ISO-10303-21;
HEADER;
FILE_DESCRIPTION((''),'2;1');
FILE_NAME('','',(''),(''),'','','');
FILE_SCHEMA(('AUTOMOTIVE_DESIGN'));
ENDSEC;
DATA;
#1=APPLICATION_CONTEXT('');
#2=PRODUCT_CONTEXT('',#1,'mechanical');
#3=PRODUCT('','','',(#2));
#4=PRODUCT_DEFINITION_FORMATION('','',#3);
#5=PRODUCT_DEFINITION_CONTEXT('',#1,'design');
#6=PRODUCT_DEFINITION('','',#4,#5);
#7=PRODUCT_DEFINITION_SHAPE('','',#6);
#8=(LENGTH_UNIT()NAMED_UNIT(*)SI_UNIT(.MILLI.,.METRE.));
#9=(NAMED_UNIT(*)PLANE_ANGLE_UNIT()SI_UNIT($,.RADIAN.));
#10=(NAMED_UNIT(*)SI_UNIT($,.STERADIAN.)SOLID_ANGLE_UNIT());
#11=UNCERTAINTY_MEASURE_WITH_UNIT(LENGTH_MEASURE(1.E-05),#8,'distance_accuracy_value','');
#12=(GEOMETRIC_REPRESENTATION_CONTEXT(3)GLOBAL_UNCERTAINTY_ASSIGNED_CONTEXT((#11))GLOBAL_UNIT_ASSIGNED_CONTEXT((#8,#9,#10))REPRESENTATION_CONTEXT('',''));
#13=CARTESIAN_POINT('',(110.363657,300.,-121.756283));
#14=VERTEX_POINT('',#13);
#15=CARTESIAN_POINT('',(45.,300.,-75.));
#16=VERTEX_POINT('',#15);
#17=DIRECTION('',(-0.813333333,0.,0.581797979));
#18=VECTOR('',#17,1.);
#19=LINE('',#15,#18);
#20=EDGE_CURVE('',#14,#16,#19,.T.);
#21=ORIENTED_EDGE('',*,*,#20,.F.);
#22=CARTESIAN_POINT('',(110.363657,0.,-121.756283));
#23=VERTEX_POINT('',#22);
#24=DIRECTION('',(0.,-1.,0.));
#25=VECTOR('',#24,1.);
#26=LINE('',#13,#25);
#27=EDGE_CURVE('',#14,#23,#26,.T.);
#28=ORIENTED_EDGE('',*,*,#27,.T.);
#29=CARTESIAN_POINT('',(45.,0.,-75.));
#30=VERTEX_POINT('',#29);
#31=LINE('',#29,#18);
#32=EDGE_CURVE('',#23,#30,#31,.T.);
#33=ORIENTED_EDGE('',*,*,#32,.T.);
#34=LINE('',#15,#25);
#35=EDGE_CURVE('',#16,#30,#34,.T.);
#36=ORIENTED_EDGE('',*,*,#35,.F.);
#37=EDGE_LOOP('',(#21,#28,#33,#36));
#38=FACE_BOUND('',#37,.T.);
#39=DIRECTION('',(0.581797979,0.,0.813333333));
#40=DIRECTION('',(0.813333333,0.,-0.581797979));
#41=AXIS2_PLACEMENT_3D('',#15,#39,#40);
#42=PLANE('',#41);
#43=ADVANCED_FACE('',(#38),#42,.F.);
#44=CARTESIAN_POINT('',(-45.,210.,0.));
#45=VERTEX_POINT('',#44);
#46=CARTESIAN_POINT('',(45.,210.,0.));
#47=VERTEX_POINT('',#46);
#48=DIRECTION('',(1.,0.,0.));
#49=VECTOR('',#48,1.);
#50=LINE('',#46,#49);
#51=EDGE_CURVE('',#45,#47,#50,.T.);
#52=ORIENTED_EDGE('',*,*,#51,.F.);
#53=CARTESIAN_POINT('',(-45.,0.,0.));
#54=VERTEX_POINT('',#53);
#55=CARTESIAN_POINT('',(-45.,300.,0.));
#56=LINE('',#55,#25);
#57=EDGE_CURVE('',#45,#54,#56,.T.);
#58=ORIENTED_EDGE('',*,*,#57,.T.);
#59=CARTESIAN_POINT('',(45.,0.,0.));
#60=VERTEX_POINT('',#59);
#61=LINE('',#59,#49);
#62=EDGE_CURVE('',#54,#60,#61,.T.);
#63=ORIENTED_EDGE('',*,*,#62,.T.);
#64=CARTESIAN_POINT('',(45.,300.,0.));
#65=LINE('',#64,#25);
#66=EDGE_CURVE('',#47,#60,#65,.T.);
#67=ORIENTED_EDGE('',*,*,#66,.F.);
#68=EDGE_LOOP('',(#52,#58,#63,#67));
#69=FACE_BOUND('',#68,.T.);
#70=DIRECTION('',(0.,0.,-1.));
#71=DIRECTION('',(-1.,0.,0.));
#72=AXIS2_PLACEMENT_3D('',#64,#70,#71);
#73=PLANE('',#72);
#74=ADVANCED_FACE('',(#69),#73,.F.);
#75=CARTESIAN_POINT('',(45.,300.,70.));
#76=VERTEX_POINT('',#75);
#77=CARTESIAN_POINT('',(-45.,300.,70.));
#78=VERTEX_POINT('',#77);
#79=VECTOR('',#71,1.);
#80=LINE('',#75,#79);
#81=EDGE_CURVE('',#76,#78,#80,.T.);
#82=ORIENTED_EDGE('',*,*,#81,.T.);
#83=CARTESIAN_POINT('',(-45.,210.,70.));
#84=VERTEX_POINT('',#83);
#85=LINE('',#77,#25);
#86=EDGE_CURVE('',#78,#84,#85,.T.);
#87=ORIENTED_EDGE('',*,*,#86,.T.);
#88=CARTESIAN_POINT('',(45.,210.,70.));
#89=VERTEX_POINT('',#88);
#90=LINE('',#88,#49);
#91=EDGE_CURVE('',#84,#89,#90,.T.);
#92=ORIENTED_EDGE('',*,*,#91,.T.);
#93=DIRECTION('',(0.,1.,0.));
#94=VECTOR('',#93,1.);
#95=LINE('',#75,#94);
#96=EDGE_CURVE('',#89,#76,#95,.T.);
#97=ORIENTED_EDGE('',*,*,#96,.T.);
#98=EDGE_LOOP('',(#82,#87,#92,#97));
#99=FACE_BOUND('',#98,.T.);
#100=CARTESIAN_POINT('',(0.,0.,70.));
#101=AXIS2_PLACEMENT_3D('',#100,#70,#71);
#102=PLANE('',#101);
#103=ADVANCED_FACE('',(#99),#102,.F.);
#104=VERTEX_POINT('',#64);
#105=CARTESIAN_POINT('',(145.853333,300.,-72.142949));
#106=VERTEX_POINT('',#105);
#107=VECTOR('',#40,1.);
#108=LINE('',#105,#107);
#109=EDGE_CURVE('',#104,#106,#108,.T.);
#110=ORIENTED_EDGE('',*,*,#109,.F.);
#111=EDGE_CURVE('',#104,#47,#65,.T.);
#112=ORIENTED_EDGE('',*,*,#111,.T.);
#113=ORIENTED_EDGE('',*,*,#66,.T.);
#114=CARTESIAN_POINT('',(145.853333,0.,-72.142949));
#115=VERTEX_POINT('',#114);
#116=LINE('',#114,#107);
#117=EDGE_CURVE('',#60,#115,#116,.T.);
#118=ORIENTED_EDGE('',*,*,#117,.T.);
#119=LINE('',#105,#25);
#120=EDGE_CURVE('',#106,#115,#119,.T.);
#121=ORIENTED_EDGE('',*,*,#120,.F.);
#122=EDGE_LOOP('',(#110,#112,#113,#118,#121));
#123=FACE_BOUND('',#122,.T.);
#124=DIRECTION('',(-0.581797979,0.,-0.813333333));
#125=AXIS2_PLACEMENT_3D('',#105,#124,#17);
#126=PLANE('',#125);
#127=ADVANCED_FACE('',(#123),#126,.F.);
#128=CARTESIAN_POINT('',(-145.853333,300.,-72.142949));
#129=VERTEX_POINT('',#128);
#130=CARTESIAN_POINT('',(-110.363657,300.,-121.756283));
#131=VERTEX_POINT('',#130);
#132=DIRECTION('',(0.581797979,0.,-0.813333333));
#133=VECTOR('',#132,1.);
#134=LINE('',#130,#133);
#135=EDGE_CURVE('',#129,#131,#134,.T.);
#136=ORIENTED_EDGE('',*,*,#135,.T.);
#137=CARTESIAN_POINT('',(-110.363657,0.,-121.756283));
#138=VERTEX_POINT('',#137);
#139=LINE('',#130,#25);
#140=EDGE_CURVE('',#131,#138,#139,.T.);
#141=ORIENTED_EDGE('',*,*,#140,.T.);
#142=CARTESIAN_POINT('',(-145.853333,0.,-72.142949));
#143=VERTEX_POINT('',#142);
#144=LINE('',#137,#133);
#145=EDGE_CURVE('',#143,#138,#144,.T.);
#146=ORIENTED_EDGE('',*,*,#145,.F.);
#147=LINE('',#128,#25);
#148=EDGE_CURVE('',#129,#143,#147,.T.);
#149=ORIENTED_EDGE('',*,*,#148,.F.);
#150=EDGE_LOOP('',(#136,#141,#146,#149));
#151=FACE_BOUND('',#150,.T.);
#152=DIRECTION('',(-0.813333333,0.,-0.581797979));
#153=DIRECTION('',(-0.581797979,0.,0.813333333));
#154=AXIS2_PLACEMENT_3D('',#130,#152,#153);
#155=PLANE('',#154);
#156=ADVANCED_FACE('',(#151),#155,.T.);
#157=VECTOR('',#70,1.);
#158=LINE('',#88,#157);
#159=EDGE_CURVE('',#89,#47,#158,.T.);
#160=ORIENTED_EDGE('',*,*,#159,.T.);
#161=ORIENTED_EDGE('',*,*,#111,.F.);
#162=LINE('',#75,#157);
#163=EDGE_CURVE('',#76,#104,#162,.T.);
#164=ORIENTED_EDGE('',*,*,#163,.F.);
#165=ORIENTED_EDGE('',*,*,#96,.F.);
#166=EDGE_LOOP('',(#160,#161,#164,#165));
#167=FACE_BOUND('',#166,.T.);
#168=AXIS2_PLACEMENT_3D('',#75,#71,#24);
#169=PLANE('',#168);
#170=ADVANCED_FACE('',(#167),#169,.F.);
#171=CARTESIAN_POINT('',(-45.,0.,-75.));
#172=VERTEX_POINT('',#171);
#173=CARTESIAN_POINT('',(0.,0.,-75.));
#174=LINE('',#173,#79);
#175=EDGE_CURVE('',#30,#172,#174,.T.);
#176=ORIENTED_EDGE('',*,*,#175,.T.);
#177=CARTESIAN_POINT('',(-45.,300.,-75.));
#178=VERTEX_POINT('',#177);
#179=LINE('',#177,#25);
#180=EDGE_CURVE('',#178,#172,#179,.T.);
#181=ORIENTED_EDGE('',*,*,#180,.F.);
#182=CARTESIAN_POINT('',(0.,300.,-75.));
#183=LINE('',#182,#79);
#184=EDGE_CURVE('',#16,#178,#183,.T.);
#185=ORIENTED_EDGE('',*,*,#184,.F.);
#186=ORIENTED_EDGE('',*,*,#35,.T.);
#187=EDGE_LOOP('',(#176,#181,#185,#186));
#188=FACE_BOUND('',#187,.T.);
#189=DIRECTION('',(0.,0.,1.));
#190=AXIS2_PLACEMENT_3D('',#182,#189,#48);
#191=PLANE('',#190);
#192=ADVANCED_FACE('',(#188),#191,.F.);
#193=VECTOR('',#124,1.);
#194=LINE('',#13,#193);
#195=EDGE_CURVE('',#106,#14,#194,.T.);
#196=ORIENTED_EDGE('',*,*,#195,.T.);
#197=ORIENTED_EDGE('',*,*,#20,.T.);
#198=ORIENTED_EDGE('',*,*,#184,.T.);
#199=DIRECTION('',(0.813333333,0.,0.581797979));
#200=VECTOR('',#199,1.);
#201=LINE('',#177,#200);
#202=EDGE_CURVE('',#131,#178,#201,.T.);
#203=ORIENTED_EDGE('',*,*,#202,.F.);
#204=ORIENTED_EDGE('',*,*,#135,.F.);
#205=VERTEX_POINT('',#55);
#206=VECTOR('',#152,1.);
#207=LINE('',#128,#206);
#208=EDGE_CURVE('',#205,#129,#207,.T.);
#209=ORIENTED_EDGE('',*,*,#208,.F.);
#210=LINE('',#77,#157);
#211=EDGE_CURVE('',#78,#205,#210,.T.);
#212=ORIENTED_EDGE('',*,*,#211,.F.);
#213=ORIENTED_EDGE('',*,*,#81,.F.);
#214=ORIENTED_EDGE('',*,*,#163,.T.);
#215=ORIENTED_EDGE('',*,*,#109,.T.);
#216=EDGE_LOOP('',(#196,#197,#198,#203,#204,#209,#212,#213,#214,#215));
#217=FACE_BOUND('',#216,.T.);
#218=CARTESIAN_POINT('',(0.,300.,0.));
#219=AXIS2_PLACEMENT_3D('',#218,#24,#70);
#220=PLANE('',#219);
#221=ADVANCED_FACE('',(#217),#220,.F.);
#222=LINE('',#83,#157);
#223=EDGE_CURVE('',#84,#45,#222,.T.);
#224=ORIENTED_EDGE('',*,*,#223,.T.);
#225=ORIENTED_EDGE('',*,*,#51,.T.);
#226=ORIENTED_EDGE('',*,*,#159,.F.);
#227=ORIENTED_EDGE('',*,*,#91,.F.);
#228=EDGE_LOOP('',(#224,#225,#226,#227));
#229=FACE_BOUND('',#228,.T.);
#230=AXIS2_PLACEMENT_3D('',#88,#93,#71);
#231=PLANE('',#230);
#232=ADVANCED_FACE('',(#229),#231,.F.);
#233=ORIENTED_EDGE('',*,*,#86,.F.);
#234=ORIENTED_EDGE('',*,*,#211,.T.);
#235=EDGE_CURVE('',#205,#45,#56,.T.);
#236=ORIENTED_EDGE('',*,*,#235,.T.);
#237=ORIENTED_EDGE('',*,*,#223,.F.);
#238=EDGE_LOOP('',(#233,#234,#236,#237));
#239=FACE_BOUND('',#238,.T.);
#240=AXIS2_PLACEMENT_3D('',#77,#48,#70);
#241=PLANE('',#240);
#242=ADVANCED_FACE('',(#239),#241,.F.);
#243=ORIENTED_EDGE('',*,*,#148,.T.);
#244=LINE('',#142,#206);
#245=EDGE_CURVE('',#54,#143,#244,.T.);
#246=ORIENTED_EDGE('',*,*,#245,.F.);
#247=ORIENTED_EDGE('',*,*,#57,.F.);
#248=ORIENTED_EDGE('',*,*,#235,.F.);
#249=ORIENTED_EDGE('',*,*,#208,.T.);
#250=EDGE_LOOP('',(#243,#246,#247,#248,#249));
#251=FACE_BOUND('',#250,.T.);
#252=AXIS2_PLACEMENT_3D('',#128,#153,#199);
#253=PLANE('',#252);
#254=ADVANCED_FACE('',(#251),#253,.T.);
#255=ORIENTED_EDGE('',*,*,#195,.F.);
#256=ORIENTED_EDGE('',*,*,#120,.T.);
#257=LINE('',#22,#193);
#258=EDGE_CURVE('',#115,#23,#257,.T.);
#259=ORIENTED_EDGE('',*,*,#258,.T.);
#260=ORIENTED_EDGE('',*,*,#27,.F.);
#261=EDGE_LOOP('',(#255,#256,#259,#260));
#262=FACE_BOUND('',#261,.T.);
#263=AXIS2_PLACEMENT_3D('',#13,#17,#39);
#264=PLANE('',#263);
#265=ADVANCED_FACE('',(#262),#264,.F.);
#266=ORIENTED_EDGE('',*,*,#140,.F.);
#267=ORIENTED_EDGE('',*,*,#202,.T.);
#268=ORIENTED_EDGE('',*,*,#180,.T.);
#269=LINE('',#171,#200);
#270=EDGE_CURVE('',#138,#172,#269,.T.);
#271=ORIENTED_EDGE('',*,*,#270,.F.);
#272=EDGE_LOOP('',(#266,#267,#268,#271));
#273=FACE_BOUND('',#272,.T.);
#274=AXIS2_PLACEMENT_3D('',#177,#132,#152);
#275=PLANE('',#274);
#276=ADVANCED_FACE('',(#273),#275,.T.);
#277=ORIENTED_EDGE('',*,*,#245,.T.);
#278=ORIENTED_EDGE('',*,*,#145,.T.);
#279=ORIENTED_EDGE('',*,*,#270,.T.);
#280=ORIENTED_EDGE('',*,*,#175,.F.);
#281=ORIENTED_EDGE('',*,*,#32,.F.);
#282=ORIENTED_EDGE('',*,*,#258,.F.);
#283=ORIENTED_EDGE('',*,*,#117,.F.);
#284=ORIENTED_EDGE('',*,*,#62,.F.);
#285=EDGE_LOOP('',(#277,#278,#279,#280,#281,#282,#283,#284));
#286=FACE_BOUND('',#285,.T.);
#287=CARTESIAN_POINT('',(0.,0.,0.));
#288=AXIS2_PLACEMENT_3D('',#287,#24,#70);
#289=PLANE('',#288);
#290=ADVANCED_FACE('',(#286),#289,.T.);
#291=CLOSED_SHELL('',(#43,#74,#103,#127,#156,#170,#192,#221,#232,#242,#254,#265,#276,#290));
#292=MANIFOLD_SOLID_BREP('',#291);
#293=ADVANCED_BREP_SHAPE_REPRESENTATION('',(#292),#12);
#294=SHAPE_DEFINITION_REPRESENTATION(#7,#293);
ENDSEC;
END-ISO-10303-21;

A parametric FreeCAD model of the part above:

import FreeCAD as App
import Part
import Sketcher

V = App.Vector
Q = App.Units.Quantity


def add_polygon(sketch, points):
    """Adds a closed chain of lines whose ends are joined by coincident constraints."""
    first, n = sketch.GeometryCount, len(points)
    for a, b in zip(points, points[1:] + points[:1]):
        sketch.addGeometry(Part.LineSegment(App.Vector(*a, 0), App.Vector(*b, 0)), False)
    for i in range(n):
        sketch.addConstraint(Sketcher.Constraint("Coincident", first + i, 2, first + (i + 1) % n, 1))

doc = App.newDocument("Part")
body = doc.addObject("PartDesign::Body", "Body")

# Sketch on XZ plane
sketch1 = doc.addObject("Sketcher::SketchObject", "Sketch")
body.addObject(sketch1)
sketch1.AttachmentSupport = (doc.XZ_Plane, [""])
sketch1.MapMode = "FlatFace"
add_polygon(sketch1, [(0, -75), (0, 0), (45, 0), (146, -72), (110, -122), (45, -75)])  # lines 0-5
sketch1.addConstraint(Sketcher.Constraint("Vertical", 0))
sketch1.addConstraint(Sketcher.Constraint("Horizontal", 1))
sketch1.addConstraint(Sketcher.Constraint("Horizontal", 5))
sketch1.addConstraint(Sketcher.Constraint("Coincident", 0, 2, -1, 1))
sketch1.addConstraint(Sketcher.Constraint("Perpendicular", 2, 3))
sketch1.addConstraint(Sketcher.Constraint("Perpendicular", 3, 4))
sketch1.addConstraint(Sketcher.Constraint("Vertical", 1, 2, 4, 2))
sketch1.addConstraint(Sketcher.Constraint("DistanceX", 1, 1, 1, 2, Q("45 mm")))
sketch1.addConstraint(Sketcher.Constraint("DistanceY", 0, 1, 0, 2, Q("75 mm")))
sketch1.addConstraint(Sketcher.Constraint("Distance", 2, Q("124 mm")))
sketch1.addConstraint(Sketcher.Constraint("Distance", 3, Q("61 mm")))
pad1 = doc.addObject("PartDesign::Pad", "Pad")
body.addObject(pad1)
pad1.Profile = sketch1
pad1.Length = 300
pad1.Reversed = True
doc.recompute()

mirrored = doc.addObject("PartDesign::Mirrored", "Mirrored")
body.addObject(mirrored)
mirrored.Originals = [pad1]
mirrored.MirrorPlane = (doc.YZ_Plane, [""])
body.Tip = mirrored

# Sketch on XY plane
sketch2 = doc.addObject("Sketcher::SketchObject", "Sketch001")
body.addObject(sketch2)
sketch2.AttachmentSupport = (doc.XY_Plane, [""])
sketch2.MapMode = "FlatFace"
add_polygon(sketch2, [(-45, 300), (-45, 210), (45, 210), (45, 300)])  # lines 0-3
sketch2.addConstraint(Sketcher.Constraint("Vertical", 0))
sketch2.addConstraint(Sketcher.Constraint("Horizontal", 1))
sketch2.addConstraint(Sketcher.Constraint("Vertical", 2))
sketch2.addConstraint(Sketcher.Constraint("Horizontal", 3))
sketch2.addConstraint(Sketcher.Constraint("Equal", 3, 0))
sketch2.addConstraint(Sketcher.Constraint("DistanceX", 1, 1, 1, 2, Q("90 mm")))
sketch2.addConstraint(Sketcher.Constraint("DistanceX", 0, 2, -1, 1, Q("45 mm")))
sketch2.addConstraint(Sketcher.Constraint("DistanceY", -1, 1, 0, 2, Q("210 mm")))
pad2 = doc.addObject("PartDesign::Pad", "Pad001")
body.addObject(pad2)
pad2.Profile = sketch2
pad2.Length = 70

doc.recompute()
